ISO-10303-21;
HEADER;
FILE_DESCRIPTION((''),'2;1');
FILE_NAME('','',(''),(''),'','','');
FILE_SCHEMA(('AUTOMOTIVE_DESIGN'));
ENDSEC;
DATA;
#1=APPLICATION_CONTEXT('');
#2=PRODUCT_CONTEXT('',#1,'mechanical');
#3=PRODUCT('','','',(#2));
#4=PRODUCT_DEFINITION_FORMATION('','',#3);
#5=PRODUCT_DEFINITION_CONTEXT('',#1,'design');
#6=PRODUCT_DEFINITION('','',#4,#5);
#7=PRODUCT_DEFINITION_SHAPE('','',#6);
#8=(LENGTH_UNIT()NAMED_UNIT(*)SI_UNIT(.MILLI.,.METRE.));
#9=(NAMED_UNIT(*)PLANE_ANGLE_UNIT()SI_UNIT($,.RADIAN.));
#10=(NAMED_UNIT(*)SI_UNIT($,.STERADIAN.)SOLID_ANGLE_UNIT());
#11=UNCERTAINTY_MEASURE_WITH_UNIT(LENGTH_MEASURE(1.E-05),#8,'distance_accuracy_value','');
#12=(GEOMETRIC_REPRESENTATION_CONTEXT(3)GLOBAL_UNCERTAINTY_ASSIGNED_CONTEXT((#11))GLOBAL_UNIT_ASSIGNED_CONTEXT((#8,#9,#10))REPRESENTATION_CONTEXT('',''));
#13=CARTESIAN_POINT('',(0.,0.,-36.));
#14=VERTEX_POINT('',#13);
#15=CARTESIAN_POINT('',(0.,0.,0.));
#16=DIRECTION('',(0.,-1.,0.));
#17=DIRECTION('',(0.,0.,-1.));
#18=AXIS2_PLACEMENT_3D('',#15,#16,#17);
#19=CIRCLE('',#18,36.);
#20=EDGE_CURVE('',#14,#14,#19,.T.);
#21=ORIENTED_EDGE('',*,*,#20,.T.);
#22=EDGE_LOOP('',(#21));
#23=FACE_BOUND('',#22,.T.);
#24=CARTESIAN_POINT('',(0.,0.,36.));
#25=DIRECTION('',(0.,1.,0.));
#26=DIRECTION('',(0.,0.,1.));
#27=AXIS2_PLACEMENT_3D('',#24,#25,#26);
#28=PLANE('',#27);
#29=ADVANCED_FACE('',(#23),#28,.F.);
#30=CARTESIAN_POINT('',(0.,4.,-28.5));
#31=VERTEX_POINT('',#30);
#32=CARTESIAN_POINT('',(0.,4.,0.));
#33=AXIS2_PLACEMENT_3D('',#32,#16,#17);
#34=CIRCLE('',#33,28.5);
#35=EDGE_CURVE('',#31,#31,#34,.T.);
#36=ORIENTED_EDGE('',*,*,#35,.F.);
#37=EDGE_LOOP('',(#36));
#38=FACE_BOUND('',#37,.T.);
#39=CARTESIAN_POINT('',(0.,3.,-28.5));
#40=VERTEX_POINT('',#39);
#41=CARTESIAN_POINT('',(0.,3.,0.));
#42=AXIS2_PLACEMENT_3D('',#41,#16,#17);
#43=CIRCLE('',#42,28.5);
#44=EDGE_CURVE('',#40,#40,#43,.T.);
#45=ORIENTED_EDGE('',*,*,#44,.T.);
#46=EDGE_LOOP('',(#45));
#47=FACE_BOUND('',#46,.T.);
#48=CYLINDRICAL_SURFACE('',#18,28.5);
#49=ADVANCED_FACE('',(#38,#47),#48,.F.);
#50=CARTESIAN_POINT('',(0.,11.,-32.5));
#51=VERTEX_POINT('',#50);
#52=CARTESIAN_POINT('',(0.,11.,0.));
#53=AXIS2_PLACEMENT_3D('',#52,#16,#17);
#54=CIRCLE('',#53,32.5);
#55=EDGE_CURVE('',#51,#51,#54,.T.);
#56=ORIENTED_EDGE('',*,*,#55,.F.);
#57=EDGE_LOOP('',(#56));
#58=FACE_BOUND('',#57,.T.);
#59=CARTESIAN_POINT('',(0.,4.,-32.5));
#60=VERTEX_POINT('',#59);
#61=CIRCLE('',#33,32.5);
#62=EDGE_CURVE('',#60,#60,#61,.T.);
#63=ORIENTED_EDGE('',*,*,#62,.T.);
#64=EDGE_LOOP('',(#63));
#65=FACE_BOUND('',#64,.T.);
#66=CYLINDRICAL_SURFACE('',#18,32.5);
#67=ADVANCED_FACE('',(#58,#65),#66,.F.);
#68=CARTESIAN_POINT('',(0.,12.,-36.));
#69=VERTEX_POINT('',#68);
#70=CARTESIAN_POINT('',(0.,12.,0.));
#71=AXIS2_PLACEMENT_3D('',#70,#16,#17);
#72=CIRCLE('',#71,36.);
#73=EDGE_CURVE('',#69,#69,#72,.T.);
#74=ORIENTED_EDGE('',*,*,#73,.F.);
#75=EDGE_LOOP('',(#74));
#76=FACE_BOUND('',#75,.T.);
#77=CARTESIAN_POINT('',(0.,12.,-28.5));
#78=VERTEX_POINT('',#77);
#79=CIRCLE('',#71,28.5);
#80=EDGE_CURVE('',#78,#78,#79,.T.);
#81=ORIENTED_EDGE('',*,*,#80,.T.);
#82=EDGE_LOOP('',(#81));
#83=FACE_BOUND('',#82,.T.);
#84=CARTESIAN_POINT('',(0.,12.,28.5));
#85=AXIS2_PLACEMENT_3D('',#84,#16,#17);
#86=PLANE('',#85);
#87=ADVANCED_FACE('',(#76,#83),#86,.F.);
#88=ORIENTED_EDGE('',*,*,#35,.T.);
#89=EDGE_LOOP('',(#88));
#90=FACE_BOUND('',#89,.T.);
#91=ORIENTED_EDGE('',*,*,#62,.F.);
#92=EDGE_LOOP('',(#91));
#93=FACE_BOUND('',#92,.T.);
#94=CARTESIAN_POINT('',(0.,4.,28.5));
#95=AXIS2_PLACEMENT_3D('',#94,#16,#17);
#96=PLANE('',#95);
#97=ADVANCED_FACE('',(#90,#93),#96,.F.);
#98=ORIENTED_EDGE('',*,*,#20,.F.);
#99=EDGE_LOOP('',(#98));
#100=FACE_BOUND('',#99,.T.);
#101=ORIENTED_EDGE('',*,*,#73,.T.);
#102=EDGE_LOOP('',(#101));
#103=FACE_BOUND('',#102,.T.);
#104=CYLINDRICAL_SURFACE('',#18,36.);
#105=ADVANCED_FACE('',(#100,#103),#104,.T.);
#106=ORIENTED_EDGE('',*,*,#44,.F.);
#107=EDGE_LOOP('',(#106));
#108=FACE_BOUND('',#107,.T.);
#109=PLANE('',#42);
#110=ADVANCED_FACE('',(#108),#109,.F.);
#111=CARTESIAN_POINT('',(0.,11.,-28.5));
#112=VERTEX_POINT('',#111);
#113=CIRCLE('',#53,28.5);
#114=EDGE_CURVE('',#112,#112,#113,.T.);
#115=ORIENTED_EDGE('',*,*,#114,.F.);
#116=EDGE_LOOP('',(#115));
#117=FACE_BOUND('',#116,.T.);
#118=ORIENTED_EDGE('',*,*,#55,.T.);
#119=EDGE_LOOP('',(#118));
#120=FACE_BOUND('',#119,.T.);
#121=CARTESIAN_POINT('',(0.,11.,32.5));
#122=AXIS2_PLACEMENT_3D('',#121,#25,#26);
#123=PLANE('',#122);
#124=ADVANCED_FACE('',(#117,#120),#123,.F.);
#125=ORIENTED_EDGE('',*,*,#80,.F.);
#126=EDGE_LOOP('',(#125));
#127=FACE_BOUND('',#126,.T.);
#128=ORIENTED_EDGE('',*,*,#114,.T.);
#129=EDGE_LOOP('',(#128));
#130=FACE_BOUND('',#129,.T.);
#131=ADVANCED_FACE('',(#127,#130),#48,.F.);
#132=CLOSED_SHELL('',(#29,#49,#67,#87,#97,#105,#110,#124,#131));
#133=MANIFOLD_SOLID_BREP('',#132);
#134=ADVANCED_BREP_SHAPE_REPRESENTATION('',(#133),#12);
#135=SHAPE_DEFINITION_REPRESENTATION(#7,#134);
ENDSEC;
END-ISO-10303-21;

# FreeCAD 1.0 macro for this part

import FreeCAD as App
import Part
import Sketcher
from FreeCAD import Vector

doc = App.newDocument("Part")
params = doc.addObject("Spreadsheet::Sheet", "Params")
for row, (alias, value) in enumerate([
    ("sketch1_width", "3 mm"),
    ("sketch1_width2", "1 mm"),
    ("sketch1_width3", "7 mm"),
    ("sketch1_height", "4 mm"),
    ("sketch1_height2", "36 mm"),
    ("revolution_angle", "360 deg"),
], start=1):
    params.set(f"A{row}", alias)
    params.set(f"B{row}", "=" + value)
    params.setAlias(f"B{row}", alias)

body = doc.addObject("PartDesign::Body", "Body")

sketch1 = doc.addObject("Sketcher::SketchObject", "Sketch")
body.addObject(sketch1)
sketch1.AttachmentSupport = (doc.YZ_Plane, [""])
sketch1.MapMode = "FlatFace"
sketch1.addGeometry(Part.LineSegment(Vector(0, 0, 0), Vector(3, 0, 0)), False)
sketch1.addGeometry(Part.LineSegment(Vector(3, 0, 0), Vector(3, 28.5, 0)), False)
sketch1.addGeometry(Part.LineSegment(Vector(3, 28.5, 0), Vector(4, 28.5, 0)), False)
sketch1.addGeometry(Part.LineSegment(Vector(4, 28.5, 0), Vector(4, 32.5, 0)), False)
sketch1.addGeometry(Part.LineSegment(Vector(4, 32.5, 0), Vector(11, 32.5, 0)), False)
sketch1.addGeometry(Part.LineSegment(Vector(11, 32.5, 0), Vector(11, 28.5, 0)), False)
sketch1.addGeometry(Part.LineSegment(Vector(11, 28.5, 0), Vector(12, 28.5, 0)), False)
sketch1.addGeometry(Part.LineSegment(Vector(12, 28.5, 0), Vector(12, 36, 0)), False)
sketch1.addGeometry(Part.LineSegment(Vector(12, 36, 0), Vector(0, 36, 0)), False)
sketch1.addGeometry(Part.LineSegment(Vector(0, 36, 0), Vector(0, 0, 0)), False)
sketch1.addConstraint(Sketcher.Constraint("Coincident", 0, 2, 1, 1))
sketch1.addConstraint(Sketcher.Constraint("Coincident", 1, 2, 2, 1))
sketch1.addConstraint(Sketcher.Constraint("Coincident", 2, 2, 3, 1))
sketch1.addConstraint(Sketcher.Constraint("Coincident", 3, 2, 4, 1))
sketch1.addConstraint(Sketcher.Constraint("Coincident", 4, 2, 5, 1))
sketch1.addConstraint(Sketcher.Constraint("Coincident", 5, 2, 6, 1))
sketch1.addConstraint(Sketcher.Constraint("Coincident", 6, 2, 7, 1))
sketch1.addConstraint(Sketcher.Constraint("Coincident", 7, 2, 8, 1))
sketch1.addConstraint(Sketcher.Constraint("Coincident", 8, 2, 9, 1))
sketch1.addConstraint(Sketcher.Constraint("Coincident", 9, 2, 0, 1))
sketch1.addConstraint(Sketcher.Constraint("Horizontal", 0))
sketch1.addConstraint(Sketcher.Constraint("Vertical", 1))
sketch1.addConstraint(Sketcher.Constraint("Horizontal", 2))
sketch1.addConstraint(Sketcher.Constraint("Vertical", 3))
sketch1.addConstraint(Sketcher.Constraint("Horizontal", 4))
sketch1.addConstraint(Sketcher.Constraint("Vertical", 5))
sketch1.addConstraint(Sketcher.Constraint("Horizontal", 6))
sketch1.addConstraint(Sketcher.Constraint("Vertical", 7))
sketch1.addConstraint(Sketcher.Constraint("Horizontal", 8))
sketch1.addConstraint(Sketcher.Constraint("Vertical", 9))
sketch1.addConstraint(Sketcher.Constraint("Coincident", 9, 2, -1, 1))
sketch1.addConstraint(Sketcher.Constraint("Horizontal", 2, 2, 5, 2))
sketch1.addConstraint(Sketcher.Constraint("Equal", 2, 6))
sketch1.addConstraint(Sketcher.Constraint("DistanceX", 0, 1, 0, 2, 3.0))
sketch1.addConstraint(Sketcher.Constraint("DistanceX", 2, 1, 2, 2, 1.0))
sketch1.addConstraint(Sketcher.Constraint("DistanceX", 4, 1, 4, 2, 7.0))
sketch1.addConstraint(Sketcher.Constraint("DistanceY", 3, 1, 3, 2, 4.0))
sketch1.addConstraint(Sketcher.Constraint("DistanceY", 9, 2, 9, 1, 36.0))
sketch1.addConstraint(Sketcher.Constraint("DistanceY", 1, 1, 1, 2, 28.5))
sketch1.setExpression("Constraints[23]", "Params.sketch1_width")
sketch1.setExpression("Constraints[24]", "Params.sketch1_width2")
sketch1.setExpression("Constraints[25]", "Params.sketch1_width3")
sketch1.setExpression("Constraints[26]", "Params.sketch1_height")
sketch1.setExpression("Constraints[27]", "Params.sketch1_height2")
revolution = doc.addObject("PartDesign::Revolution", "Revolution")
body.addObject(revolution)
revolution.Profile = sketch1
revolution.ReferenceAxis = (sketch1, ["H_Axis"])
revolution.setExpression("Angle", "Params.revolution_angle")

doc.recompute()
